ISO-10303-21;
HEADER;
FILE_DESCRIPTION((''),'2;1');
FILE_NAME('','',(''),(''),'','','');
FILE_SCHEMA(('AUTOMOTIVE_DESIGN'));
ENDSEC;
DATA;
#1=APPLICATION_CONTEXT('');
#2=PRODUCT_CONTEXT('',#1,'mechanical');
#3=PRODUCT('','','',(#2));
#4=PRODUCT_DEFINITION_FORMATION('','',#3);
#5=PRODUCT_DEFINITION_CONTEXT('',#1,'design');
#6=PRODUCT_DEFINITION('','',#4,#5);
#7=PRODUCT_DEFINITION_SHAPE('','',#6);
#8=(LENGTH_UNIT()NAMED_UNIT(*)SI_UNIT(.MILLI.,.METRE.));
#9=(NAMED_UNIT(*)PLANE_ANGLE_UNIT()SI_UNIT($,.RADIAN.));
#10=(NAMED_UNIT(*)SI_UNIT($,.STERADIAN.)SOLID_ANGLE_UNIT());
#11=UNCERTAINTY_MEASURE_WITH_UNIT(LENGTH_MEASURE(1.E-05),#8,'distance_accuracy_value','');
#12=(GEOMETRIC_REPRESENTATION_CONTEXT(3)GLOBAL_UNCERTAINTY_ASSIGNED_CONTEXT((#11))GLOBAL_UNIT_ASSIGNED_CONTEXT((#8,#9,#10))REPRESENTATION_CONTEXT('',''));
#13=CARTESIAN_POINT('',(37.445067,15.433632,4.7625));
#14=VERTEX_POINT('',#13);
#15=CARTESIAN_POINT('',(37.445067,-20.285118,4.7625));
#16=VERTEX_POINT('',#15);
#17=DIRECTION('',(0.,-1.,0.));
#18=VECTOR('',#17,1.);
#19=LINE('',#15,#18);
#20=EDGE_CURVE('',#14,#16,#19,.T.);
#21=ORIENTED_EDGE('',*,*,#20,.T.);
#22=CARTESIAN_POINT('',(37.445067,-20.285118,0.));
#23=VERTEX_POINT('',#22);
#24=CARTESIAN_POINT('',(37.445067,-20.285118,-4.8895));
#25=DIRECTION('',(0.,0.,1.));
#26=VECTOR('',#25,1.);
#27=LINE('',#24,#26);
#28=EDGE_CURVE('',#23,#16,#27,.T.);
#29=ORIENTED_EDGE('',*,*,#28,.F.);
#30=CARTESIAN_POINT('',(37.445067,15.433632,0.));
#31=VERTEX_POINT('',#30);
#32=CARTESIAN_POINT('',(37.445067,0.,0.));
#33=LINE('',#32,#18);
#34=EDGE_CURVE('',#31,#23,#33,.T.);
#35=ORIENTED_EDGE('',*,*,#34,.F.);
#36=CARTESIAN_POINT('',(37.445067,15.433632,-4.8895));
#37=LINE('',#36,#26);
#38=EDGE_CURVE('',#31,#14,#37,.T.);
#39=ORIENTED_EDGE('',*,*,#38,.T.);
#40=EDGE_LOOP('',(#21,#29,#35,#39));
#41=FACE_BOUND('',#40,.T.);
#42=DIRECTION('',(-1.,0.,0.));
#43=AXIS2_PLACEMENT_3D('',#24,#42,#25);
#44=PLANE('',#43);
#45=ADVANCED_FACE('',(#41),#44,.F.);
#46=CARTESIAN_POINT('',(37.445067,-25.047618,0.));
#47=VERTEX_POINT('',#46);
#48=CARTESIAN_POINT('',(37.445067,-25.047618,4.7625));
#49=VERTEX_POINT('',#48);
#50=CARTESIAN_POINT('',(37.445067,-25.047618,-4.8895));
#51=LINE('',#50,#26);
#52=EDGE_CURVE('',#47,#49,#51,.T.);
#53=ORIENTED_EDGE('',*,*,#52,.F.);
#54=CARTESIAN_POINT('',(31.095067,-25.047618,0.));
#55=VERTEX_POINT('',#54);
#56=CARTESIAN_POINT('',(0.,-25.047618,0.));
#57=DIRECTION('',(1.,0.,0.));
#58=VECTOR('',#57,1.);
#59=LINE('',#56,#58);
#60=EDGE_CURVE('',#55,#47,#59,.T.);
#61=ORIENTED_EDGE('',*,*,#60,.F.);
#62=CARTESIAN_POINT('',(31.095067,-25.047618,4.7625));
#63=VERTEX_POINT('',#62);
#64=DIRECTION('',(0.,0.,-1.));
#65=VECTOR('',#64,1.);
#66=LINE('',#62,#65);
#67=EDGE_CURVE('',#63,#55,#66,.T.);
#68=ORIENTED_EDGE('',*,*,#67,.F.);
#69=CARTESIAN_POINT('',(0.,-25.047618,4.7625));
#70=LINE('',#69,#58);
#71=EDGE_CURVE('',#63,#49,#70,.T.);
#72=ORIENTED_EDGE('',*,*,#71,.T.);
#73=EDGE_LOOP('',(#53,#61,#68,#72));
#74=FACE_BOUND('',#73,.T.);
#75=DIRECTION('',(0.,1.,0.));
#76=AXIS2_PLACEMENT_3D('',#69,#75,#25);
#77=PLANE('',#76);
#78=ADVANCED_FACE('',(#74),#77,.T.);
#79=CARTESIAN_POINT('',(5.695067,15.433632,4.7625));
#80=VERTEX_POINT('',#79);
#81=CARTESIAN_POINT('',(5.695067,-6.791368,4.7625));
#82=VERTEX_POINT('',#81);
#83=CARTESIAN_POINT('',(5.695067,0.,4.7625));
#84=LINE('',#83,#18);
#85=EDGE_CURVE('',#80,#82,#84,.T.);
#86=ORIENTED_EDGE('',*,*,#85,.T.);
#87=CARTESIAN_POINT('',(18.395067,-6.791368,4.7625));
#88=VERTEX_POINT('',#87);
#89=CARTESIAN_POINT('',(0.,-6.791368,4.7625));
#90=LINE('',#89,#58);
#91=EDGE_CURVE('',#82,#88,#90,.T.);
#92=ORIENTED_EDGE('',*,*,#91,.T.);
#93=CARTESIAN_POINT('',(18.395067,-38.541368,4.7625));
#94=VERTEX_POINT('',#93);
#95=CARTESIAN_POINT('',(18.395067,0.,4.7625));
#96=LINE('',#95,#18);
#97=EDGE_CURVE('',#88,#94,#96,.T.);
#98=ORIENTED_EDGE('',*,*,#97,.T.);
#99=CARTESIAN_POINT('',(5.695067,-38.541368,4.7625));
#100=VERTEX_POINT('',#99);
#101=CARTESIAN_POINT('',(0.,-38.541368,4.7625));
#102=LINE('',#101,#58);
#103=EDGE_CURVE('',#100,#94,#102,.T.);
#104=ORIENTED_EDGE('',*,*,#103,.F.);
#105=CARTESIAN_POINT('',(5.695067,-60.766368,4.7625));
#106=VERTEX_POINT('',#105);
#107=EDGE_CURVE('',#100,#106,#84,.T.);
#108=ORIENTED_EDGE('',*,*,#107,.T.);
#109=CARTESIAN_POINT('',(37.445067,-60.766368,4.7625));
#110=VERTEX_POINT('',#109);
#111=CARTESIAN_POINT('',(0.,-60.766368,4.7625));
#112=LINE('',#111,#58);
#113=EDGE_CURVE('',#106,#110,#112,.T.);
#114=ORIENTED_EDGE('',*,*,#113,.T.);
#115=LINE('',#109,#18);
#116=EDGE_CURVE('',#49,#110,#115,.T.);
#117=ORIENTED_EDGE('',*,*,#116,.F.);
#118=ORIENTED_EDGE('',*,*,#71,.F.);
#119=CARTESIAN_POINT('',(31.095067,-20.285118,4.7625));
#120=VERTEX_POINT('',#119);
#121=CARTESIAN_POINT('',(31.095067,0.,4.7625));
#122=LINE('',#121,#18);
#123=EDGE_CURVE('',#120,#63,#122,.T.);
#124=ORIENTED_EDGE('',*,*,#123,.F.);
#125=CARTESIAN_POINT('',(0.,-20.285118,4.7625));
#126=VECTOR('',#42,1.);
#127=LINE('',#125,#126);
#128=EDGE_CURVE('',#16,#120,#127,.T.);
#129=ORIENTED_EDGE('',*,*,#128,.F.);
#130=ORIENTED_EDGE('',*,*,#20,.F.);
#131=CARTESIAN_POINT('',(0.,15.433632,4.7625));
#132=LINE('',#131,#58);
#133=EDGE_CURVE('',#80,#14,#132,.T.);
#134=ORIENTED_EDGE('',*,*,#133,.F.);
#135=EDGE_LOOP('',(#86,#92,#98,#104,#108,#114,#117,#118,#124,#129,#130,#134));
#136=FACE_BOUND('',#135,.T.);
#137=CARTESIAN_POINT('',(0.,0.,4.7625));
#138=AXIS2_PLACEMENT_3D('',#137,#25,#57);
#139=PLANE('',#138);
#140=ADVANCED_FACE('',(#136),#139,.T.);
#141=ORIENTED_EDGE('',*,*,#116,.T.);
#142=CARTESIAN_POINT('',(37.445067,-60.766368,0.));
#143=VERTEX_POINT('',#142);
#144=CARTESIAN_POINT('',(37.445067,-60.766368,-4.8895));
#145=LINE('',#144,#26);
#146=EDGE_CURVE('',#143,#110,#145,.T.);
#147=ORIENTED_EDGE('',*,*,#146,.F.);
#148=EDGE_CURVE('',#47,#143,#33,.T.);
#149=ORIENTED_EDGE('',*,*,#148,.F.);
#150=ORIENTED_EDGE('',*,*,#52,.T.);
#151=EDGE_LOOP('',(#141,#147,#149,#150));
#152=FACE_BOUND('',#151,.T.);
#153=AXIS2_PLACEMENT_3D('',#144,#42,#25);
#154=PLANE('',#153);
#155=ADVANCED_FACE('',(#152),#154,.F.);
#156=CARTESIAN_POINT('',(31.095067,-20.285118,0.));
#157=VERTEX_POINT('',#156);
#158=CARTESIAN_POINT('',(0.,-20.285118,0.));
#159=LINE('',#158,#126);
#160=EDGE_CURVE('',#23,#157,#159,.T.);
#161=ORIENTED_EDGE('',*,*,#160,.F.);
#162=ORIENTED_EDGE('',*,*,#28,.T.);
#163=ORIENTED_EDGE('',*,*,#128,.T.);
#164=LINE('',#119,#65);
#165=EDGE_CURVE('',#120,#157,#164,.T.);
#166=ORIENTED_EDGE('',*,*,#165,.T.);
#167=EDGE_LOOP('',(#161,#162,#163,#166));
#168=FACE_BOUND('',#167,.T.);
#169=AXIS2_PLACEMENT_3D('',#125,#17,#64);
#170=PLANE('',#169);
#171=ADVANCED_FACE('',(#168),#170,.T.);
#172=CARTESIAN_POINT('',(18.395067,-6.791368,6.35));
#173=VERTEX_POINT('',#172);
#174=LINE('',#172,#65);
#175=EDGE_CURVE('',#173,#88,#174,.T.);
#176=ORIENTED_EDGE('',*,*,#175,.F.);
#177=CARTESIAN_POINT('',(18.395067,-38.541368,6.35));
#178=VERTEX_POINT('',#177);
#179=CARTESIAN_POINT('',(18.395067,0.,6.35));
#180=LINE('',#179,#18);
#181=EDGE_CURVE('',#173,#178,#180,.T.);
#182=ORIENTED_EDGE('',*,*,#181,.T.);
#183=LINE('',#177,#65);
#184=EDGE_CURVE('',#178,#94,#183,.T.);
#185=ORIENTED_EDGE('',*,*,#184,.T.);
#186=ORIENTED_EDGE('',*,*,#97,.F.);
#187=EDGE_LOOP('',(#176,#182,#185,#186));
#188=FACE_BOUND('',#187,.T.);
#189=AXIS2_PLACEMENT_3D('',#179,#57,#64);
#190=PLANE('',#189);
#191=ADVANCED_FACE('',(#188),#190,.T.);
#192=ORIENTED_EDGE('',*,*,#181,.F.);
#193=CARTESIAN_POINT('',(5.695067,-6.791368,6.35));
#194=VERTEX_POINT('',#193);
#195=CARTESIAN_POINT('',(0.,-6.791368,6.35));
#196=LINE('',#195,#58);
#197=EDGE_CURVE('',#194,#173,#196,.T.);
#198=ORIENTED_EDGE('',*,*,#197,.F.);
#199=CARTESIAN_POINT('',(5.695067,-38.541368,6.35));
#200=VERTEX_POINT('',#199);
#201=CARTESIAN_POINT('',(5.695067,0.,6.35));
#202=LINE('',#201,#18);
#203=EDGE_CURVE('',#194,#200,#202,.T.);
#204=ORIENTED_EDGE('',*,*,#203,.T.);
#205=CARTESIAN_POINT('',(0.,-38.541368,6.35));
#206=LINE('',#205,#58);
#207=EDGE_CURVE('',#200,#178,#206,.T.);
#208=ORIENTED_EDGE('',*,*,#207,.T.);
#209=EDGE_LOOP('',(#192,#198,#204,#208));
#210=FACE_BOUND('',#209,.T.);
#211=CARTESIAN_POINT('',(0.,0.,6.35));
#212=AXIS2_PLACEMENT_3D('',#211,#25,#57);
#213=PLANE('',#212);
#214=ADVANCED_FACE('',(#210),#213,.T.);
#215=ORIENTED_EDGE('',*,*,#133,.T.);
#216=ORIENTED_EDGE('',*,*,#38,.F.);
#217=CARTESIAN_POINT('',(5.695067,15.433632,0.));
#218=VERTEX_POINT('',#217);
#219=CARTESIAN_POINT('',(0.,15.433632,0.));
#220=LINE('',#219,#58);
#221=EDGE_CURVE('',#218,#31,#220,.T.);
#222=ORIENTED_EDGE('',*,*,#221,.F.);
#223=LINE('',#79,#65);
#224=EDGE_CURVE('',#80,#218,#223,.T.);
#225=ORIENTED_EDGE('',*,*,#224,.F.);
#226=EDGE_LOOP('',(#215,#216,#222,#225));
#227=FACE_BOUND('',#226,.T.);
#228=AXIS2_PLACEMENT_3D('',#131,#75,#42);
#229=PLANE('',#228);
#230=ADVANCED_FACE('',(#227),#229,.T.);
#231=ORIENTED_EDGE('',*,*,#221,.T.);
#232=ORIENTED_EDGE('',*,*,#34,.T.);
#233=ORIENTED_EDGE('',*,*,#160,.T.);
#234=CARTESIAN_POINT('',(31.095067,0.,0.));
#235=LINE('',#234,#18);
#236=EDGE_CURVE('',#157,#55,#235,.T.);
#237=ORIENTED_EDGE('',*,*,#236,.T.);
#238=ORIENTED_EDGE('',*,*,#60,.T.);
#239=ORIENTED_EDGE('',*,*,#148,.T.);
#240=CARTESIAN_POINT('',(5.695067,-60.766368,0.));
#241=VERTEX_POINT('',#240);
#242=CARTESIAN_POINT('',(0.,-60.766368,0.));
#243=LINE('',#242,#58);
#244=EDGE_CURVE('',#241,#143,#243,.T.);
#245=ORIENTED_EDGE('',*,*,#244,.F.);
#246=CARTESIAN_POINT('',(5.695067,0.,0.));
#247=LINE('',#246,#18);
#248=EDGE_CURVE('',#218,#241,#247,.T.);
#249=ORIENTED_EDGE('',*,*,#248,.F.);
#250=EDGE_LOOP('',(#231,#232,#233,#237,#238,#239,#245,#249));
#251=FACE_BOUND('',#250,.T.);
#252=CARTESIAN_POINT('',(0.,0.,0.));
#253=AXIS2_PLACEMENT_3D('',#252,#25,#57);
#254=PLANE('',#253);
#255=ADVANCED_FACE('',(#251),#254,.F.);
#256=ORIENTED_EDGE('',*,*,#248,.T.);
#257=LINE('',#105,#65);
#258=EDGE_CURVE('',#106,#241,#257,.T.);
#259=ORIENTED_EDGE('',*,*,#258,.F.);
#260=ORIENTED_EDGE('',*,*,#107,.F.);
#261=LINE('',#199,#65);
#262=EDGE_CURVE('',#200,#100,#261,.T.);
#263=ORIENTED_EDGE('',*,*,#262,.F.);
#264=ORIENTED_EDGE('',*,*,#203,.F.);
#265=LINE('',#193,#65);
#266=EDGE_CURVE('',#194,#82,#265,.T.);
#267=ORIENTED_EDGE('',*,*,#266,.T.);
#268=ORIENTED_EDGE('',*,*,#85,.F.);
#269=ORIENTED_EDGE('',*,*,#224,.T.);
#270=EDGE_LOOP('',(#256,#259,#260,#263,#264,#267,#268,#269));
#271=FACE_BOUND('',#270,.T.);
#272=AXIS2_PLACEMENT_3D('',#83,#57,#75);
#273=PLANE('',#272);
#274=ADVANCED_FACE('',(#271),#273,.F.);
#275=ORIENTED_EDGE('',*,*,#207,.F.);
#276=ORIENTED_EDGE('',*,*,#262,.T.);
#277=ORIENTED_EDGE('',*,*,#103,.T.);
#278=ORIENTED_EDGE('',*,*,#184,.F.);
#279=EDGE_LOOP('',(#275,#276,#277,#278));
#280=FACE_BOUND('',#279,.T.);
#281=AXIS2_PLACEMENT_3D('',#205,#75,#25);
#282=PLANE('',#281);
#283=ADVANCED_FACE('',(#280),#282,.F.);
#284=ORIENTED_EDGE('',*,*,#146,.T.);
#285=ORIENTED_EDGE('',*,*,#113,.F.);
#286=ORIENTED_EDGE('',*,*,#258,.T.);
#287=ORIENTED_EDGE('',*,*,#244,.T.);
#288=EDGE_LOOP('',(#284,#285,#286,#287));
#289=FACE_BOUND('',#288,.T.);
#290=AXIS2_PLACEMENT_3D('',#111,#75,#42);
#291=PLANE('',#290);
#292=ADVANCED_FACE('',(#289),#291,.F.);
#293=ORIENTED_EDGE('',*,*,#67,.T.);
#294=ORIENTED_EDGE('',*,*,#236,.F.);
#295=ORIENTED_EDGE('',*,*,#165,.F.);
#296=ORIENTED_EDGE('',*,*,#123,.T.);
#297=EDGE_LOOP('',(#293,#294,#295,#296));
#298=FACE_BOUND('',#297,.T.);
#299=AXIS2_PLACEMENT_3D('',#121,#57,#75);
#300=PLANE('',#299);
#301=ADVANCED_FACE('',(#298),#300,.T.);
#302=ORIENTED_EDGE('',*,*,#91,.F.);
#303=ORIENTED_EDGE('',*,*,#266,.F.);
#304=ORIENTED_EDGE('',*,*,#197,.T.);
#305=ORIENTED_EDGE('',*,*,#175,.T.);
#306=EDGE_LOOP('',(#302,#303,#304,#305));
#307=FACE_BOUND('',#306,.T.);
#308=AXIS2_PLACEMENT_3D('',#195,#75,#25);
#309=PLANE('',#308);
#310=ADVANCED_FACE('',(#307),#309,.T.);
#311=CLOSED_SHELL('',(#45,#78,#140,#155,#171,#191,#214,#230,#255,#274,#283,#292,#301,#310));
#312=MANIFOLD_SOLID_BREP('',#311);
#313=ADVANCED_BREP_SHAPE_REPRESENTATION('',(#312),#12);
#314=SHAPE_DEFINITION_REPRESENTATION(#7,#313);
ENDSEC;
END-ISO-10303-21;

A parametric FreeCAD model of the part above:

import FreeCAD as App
import Part
import Sketcher
from FreeCAD import Vector
Q = App.Units.Quantity

doc = App.newDocument("Part")
params = doc.addObject("Spreadsheet::Sheet", "Params")
for row, (alias, value) in enumerate([
    ("sketch1_height", "3 in"),
    ("sketch1_width", "1.5 in"),
    ("sketch1_width2", "0.5 in"),
    ("sketch1_height2", "1.40625 in"),
    ("pad1_length", "0.1875 in"),
    ("sketch2_width", "0.5 in"),
    ("sketch2_height", "1.25 in"),
    ("pad2_length", "0.0625 in"),
    ("sketch3_width", "0.25 in"),
    ("sketch3_height", "1.40625 in"),
    ("pocket1_length", "0.38 in"),
], start=1):
    params.set(f"A{row}", alias)
    params.set(f"B{row}", "=" + value)
    params.setAlias(f"B{row}", alias)

body = doc.addObject("PartDesign::Body", "Body")

sketch1 = body.newObject("Sketcher::SketchObject", "Sketch")
sketch1.AttachmentSupport = (doc.getObject("XY_Plane"), [""])
sketch1.MapMode = "FlatFace"
sketch1.addGeometry([
    Part.LineSegment(Vector(43.8, 15.4, 0), Vector(5.7, 15.4, 0)),
    Part.LineSegment(Vector(5.7, 15.4, 0), Vector(5.7, -60.8, 0)),
    Part.LineSegment(Vector(5.7, -60.8, 0), Vector(43.8, -60.8, 0)),
    Part.LineSegment(Vector(43.8, -60.8, 0), Vector(43.8, -25, 0)),
    Part.LineSegment(Vector(43.8, -25, 0), Vector(31.1, -25, 0)),
    Part.LineSegment(Vector(31.1, -25, 0), Vector(31.1, -20.3, 0)),
    Part.LineSegment(Vector(31.1, -20.3, 0), Vector(43.8, -20.3, 0)),
    Part.LineSegment(Vector(43.8, -20.3, 0), Vector(43.8, 15.4, 0)),
], False)
sketch1.addConstraint([
    Sketcher.Constraint("Coincident", 0, 2, 1, 1),
    Sketcher.Constraint("Coincident", 1, 2, 2, 1),
    Sketcher.Constraint("Coincident", 2, 2, 3, 1),
    Sketcher.Constraint("Coincident", 3, 2, 4, 1),
    Sketcher.Constraint("Coincident", 4, 2, 5, 1),
    Sketcher.Constraint("Coincident", 5, 2, 6, 1),
    Sketcher.Constraint("Coincident", 6, 2, 7, 1),
    Sketcher.Constraint("Coincident", 7, 2, 0, 1),
    Sketcher.Constraint("Horizontal", 0),
    Sketcher.Constraint("Vertical", 1),
    Sketcher.Constraint("Horizontal", 2),
    Sketcher.Constraint("Vertical", 3),
    Sketcher.Constraint("Horizontal", 4),
    Sketcher.Constraint("Vertical", 5),
    Sketcher.Constraint("Horizontal", 6),
    Sketcher.Constraint("Vertical", 7),
    Sketcher.Constraint("Vertical", 3, 2, 6, 2),
    Sketcher.Constraint("Equal", 3, 7),
    Sketcher.Constraint("DistanceY", 1, 2, 1, 1, Q("3 in")),
    Sketcher.Constraint("DistanceX", 0, 2, 0, 1, Q("1.5 in")),
    Sketcher.Constraint("DistanceX", 4, 2, 4, 1, Q("0.5 in")),
    Sketcher.Constraint("DistanceY", 3, 1, 3, 2, Q("1.40625 in")),
    Sketcher.Constraint("DistanceX", -1, 1, 0, 2, 5.695067),
    Sketcher.Constraint("DistanceY", -1, 1, 0, 2, 15.433632),
])
sketch1.setExpression("Constraints[18]", "Params.sketch1_height")
sketch1.setExpression("Constraints[19]", "Params.sketch1_width")
sketch1.setExpression("Constraints[20]", "Params.sketch1_width2")
sketch1.setExpression("Constraints[21]", "Params.sketch1_height2")
pad1 = body.newObject("PartDesign::Pad", "Pad")
pad1.Profile = sketch1
pad1.setExpression("Length", "Params.pad1_length")

sketch2 = body.newObject("Sketcher::SketchObject", "Sketch001")
sketch2.AttachmentSupport = (doc.getObject("XY_Plane"), [""])
sketch2.MapMode = "FlatFace"
sketch2.AttachmentOffset = App.Placement(Vector(0, 0, 0.1875 * 25.4), App.Rotation())
sketch2.addGeometry([
    Part.LineSegment(Vector(18, -7, 0), Vector(6, -7, 0)),
    Part.LineSegment(Vector(6, -7, 0), Vector(6, -39, 0)),
    Part.LineSegment(Vector(6, -39, 0), Vector(18, -39, 0)),
    Part.LineSegment(Vector(18, -39, 0), Vector(18, -7, 0)),
], False)
sketch2.addConstraint([
    Sketcher.Constraint("Coincident", 0, 2, 1, 1),
    Sketcher.Constraint("Coincident", 1, 2, 2, 1),
    Sketcher.Constraint("Coincident", 2, 2, 3, 1),
    Sketcher.Constraint("Coincident", 3, 2, 0, 1),
    Sketcher.Constraint("Horizontal", 0),
    Sketcher.Constraint("Vertical", 1),
    Sketcher.Constraint("Horizontal", 2),
    Sketcher.Constraint("Vertical", 3),
    Sketcher.Constraint("DistanceX", 0, 2, 0, 1, Q("0.5 in")),
    Sketcher.Constraint("DistanceY", 1, 2, 1, 1, Q("1.25 in")),
    Sketcher.Constraint("DistanceX", -1, 1, 0, 2, 5.695067),
    Sketcher.Constraint("DistanceY", 0, 2, -1, 1, 6.791368),
])
sketch2.setExpression("Constraints[8]", "Params.sketch2_width")
sketch2.setExpression("Constraints[9]", "Params.sketch2_height")
pad2 = body.newObject("PartDesign::Pad", "Pad001")
pad2.Profile = sketch2
pad2.setExpression("Length", "Params.pad2_length")

sketch3 = body.newObject("Sketcher::SketchObject", "Sketch002")
sketch3.AttachmentSupport = (doc.getObject("XY_Plane"), [""])
sketch3.MapMode = "FlatFace"
sketch3.AttachmentOffset = App.Placement(Vector(0, 0, 0.1875 * 25.4), App.Rotation())
sketch3.addGeometry([
    Part.LineSegment(Vector(37, -25, 0), Vector(37, -61, 0)),
    Part.LineSegment(Vector(37, -61, 0), Vector(44, -61, 0)),
    Part.LineSegment(Vector(44, -61, 0), Vector(44, -25, 0)),
    Part.LineSegment(Vector(44, -25, 0), Vector(37, -25, 0)),
    Part.LineSegment(Vector(37, 15, 0), Vector(37, -20, 0)),
    Part.LineSegment(Vector(37, -20, 0), Vector(44, -20, 0)),
    Part.LineSegment(Vector(44, -20, 0), Vector(44, 15, 0)),
    Part.LineSegment(Vector(44, 15, 0), Vector(37, 15, 0)),
], False)
sketch3.addConstraint([
    Sketcher.Constraint("Coincident", 0, 2, 1, 1),
    Sketcher.Constraint("Coincident", 1, 2, 2, 1),
    Sketcher.Constraint("Coincident", 2, 2, 3, 1),
    Sketcher.Constraint("Coincident", 3, 2, 0, 1),
    Sketcher.Constraint("Coincident", 4, 2, 5, 1),
    Sketcher.Constraint("Coincident", 5, 2, 6, 1),
    Sketcher.Constraint("Coincident", 6, 2, 7, 1),
    Sketcher.Constraint("Coincident", 7, 2, 4, 1),
    Sketcher.Constraint("Vertical", 0),
    Sketcher.Constraint("Horizontal", 1),
    Sketcher.Constraint("Vertical", 2),
    Sketcher.Constraint("Horizontal", 3),
    Sketcher.Constraint("Vertical", 4),
    Sketcher.Constraint("Horizontal", 5),
    Sketcher.Constraint("Vertical", 6),
    Sketcher.Constraint("Horizontal", 7),
    Sketcher.Constraint("Vertical", 3, 2, 4, 2),
    Sketcher.Constraint("Vertical", 2, 2, 5, 2),
    Sketcher.Constraint("Equal", 2, 4),
    Sketcher.Constraint("DistanceY", 1, 2, 6, 2, Q("3 in")),
    Sketcher.Constraint("DistanceX", 1, 1, 1, 2, Q("0.25 in")),
    Sketcher.Constraint("DistanceY", 0, 2, 0, 1, Q("1.40625 in")),
    Sketcher.Constraint("DistanceX", -1, 1, 0, 2, 37.445067),
    Sketcher.Constraint("DistanceY", 0, 2, -1, 1, 60.766368),
])
sketch3.setExpression("Constraints[20]", "Params.sketch3_width")
sketch3.setExpression("Constraints[21]", "Params.sketch3_height")
pocket1 = body.newObject("PartDesign::Pocket", "Pocket")
pocket1.Profile = sketch3
pocket1.setExpression("Length", "Params.pocket1_length")

doc.recompute()
